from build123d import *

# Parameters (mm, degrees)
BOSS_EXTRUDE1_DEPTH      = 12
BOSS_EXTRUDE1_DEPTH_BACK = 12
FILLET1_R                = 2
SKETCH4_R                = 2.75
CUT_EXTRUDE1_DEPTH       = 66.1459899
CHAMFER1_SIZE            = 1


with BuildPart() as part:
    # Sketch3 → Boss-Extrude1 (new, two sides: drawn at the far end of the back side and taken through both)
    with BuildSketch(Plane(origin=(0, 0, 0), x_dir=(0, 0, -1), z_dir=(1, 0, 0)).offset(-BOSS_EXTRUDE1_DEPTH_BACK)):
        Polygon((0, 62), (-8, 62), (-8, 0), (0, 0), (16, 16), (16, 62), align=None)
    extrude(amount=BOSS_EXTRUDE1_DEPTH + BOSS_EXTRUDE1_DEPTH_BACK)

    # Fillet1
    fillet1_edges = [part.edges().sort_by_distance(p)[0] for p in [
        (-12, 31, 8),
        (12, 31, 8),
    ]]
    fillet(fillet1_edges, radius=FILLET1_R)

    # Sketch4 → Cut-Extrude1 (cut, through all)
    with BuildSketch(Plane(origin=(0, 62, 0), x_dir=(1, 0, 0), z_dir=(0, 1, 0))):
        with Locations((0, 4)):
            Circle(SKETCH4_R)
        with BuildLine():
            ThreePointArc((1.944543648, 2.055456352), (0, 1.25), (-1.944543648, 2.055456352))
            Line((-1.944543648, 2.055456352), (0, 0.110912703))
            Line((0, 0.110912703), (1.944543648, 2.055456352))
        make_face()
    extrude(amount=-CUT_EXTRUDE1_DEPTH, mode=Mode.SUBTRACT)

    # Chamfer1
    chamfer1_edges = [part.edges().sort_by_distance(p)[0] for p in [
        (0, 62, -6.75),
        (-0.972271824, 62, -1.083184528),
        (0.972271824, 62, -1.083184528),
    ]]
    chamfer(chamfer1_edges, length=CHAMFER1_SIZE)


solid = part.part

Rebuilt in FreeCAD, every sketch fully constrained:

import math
import FreeCAD as App
import Part
import Sketcher

V = App.Vector
Q = App.Units.Quantity


def edges_at(feature, points):
    """Names of the edges that pass closest to the given points."""
    edges = feature.Shape.Edges
    near = lambda p: min(range(len(edges)), key=lambda i: edges[i].distToShape(Part.Vertex(*p))[0])
    return sorted({f"Edge{near(p) + 1}" for p in points})

doc = App.newDocument("Part")
body = doc.addObject("PartDesign::Body", "Body")

# Sketch on YZ plane
sketch1 = body.newObject("Sketcher::SketchObject", "Sketch")
sketch1.AttachmentSupport = (doc.getObject("YZ_Plane"), [""])
sketch1.MapMode = "FlatFace"
sketch1.addGeometry([
    Part.LineSegment(V(62, 8, 0), V(0, 8, 0)),  # 0
    Part.LineSegment(V(0, 8, 0), V(0, 0, 0)),  # 1
    Part.LineSegment(V(0, 0, 0), V(16, -16, 0)),  # 2
    Part.LineSegment(V(16, -16, 0), V(62, -16, 0)),  # 3
    Part.LineSegment(V(62, -16, 0), V(62, 8, 0)),  # 4
], False)
sketch1.addConstraint([
    Sketcher.Constraint("Coincident", 0, 2, 1, 1),
    Sketcher.Constraint("Coincident", 1, 2, 2, 1),
    Sketcher.Constraint("Coincident", 2, 2, 3, 1),
    Sketcher.Constraint("Coincident", 3, 2, 4, 1),
    Sketcher.Constraint("Coincident", 4, 2, 0, 1),
    Sketcher.Constraint("Horizontal", 0),
    Sketcher.Constraint("Vertical", 1),
    Sketcher.Constraint("Horizontal", 3),
    Sketcher.Constraint("Vertical", 4),
    Sketcher.Constraint("Coincident", 1, 2, -1, 1),
    Sketcher.Constraint("DistanceX", 0, 2, 0, 1, Q("62 mm")),
    Sketcher.Constraint("DistanceX", 3, 1, 3, 2, Q("46 mm")),
    Sketcher.Constraint("DistanceY", 1, 2, 1, 1, Q("8 mm")),
    Sketcher.Constraint("DistanceY", 4, 1, 4, 2, Q("24 mm")),
])
pad1 = body.newObject("PartDesign::Pad", "Pad")
pad1.Profile = sketch1
pad1.Type = "TwoLengths"
pad1.Length = 12
pad1.Length2 = 12
doc.recompute()

fillet = body.newObject("PartDesign::Fillet", "Fillet")
fillet.Base = (pad1, edges_at(pad1, [(-12, 31, 8), (12, 31, 8)]))
fillet.Radius = 2

# Sketch on XZ plane
sketch2 = body.newObject("Sketcher::SketchObject", "Sketch001")
sketch2.AttachmentSupport = (doc.getObject("XZ_Plane"), [""])
sketch2.MapMode = "FlatFace"
sketch2.AttachmentOffset = App.Placement(V(0, 0, -62), App.Rotation())
sketch2.addGeometry([
    Part.LineSegment(V(-1.944544, -2.055456, 0), V(0, -0.110913, 0)),
    Part.LineSegment(V(0, -0.110913, 0), V(1.944544, -2.055456, 0)),
    Part.ArcOfCircle(Part.Circle(V(0, -4, 0), V(0, 0, 1), 2.75), math.radians(135), math.radians(405)),
], False)
sketch2.addConstraint([
    Sketcher.Constraint("Coincident", 0, 2, 1, 1),
    Sketcher.Constraint("Tangent", 1, 2, 2, 2),
    Sketcher.Constraint("Tangent", 2, 1, 0, 1),
    Sketcher.Constraint("Symmetric", 1, 2, 2, 1, -2),
    Sketcher.Constraint("Perpendicular", 0, 1),
    Sketcher.Constraint("Radius", 2, Q("2.75 mm")),
    Sketcher.Constraint("DistanceY", 2, 3, -1, 1, Q("4 mm")),
])
pocket1 = body.newObject("PartDesign::Pocket", "Pocket")
pocket1.Profile = sketch2
pocket1.Type = "ThroughAll"
pocket1.Reversed = True
doc.recompute()

chamfer = body.newObject("PartDesign::Chamfer", "Chamfer")
chamfer.Base = (pocket1, edges_at(pocket1, [(0, 62, -6.75), (-0.972, 62, -1.083), (0.972, 62, -1.083)]))
chamfer.Size = 1

doc.recompute()
